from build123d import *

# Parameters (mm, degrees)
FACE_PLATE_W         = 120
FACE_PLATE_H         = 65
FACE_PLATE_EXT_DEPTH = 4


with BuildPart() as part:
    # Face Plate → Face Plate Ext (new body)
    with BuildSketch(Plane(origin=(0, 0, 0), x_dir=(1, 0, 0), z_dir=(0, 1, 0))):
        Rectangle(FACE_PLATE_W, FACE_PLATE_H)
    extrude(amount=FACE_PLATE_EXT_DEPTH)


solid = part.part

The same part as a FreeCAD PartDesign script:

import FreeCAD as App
import Part
import Sketcher
from FreeCAD import Vector
Q = App.Units.Quantity

doc = App.newDocument("Part")
body = doc.addObject("PartDesign::Body", "Body")

# Sketch on XZ plane
sketch1 = body.newObject("Sketcher::SketchObject", "Sketch")
sketch1.AttachmentSupport = (doc.getObject("XZ_Plane"), [""])
sketch1.MapMode = "FlatFace"
sketch1.addGeometry([
    Part.LineSegment(Vector(-60, -32.5, 0), Vector(-60, 32.5, 0)),
    Part.LineSegment(Vector(-60, 32.5, 0), Vector(60, 32.5, 0)),
    Part.LineSegment(Vector(60, 32.5, 0), Vector(60, -32.5, 0)),
    Part.LineSegment(Vector(60, -32.5, 0), Vector(-60, -32.5, 0)),
], False)
sketch1.addConstraint([
    Sketcher.Constraint("Coincident", 0, 2, 1, 1),
    Sketcher.Constraint("Coincident", 1, 2, 2, 1),
    Sketcher.Constraint("Coincident", 2, 2, 3, 1),
    Sketcher.Constraint("Coincident", 3, 2, 0, 1),
    Sketcher.Constraint("Vertical", 0),
    Sketcher.Constraint("Horizontal", 1),
    Sketcher.Constraint("Vertical", 2),
    Sketcher.Constraint("Horizontal", 3),
    Sketcher.Constraint("Symmetric", 0, 2, 2, 2, -1, 1),
    Sketcher.Constraint("DistanceX", 1, 1, 1, 2, Q("120 mm")),
    Sketcher.Constraint("DistanceY", 0, 1, 0, 2, Q("65 mm")),
])
pad1 = body.newObject("PartDesign::Pad", "Pad")
pad1.Profile = sketch1
pad1.Length = 4
pad1.Reversed = True

doc.recompute()
